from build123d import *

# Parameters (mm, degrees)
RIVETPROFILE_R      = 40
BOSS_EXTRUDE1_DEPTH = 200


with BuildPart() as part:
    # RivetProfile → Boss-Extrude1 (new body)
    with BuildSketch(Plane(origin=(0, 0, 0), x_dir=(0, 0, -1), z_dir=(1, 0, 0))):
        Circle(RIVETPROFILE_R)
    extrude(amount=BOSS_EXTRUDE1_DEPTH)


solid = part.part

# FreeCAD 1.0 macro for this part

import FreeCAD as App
import Part
import Sketcher
from FreeCAD import Vector
Q = App.Units.Quantity

doc = App.newDocument("Part")
body = doc.addObject("PartDesign::Body", "Body")

sketch1 = body.newObject("Sketcher::SketchObject", "Sketch")
sketch1.AttachmentSupport = (doc.getObject("YZ_Plane"), [""])
sketch1.MapMode = "FlatFace"
sketch1.addGeometry(Part.Circle(Vector(0, 0, 0), Vector(0, 0, 1), 40), False)
sketch1.addConstraint([
    Sketcher.Constraint("Coincident", 0, 3, -1, 1),
    Sketcher.Constraint("Diameter", 0, Q("80 mm")),
])
pad1 = body.newObject("PartDesign::Pad", "Pad")
pad1.Profile = sketch1
pad1.Length = 200

doc.recompute()
